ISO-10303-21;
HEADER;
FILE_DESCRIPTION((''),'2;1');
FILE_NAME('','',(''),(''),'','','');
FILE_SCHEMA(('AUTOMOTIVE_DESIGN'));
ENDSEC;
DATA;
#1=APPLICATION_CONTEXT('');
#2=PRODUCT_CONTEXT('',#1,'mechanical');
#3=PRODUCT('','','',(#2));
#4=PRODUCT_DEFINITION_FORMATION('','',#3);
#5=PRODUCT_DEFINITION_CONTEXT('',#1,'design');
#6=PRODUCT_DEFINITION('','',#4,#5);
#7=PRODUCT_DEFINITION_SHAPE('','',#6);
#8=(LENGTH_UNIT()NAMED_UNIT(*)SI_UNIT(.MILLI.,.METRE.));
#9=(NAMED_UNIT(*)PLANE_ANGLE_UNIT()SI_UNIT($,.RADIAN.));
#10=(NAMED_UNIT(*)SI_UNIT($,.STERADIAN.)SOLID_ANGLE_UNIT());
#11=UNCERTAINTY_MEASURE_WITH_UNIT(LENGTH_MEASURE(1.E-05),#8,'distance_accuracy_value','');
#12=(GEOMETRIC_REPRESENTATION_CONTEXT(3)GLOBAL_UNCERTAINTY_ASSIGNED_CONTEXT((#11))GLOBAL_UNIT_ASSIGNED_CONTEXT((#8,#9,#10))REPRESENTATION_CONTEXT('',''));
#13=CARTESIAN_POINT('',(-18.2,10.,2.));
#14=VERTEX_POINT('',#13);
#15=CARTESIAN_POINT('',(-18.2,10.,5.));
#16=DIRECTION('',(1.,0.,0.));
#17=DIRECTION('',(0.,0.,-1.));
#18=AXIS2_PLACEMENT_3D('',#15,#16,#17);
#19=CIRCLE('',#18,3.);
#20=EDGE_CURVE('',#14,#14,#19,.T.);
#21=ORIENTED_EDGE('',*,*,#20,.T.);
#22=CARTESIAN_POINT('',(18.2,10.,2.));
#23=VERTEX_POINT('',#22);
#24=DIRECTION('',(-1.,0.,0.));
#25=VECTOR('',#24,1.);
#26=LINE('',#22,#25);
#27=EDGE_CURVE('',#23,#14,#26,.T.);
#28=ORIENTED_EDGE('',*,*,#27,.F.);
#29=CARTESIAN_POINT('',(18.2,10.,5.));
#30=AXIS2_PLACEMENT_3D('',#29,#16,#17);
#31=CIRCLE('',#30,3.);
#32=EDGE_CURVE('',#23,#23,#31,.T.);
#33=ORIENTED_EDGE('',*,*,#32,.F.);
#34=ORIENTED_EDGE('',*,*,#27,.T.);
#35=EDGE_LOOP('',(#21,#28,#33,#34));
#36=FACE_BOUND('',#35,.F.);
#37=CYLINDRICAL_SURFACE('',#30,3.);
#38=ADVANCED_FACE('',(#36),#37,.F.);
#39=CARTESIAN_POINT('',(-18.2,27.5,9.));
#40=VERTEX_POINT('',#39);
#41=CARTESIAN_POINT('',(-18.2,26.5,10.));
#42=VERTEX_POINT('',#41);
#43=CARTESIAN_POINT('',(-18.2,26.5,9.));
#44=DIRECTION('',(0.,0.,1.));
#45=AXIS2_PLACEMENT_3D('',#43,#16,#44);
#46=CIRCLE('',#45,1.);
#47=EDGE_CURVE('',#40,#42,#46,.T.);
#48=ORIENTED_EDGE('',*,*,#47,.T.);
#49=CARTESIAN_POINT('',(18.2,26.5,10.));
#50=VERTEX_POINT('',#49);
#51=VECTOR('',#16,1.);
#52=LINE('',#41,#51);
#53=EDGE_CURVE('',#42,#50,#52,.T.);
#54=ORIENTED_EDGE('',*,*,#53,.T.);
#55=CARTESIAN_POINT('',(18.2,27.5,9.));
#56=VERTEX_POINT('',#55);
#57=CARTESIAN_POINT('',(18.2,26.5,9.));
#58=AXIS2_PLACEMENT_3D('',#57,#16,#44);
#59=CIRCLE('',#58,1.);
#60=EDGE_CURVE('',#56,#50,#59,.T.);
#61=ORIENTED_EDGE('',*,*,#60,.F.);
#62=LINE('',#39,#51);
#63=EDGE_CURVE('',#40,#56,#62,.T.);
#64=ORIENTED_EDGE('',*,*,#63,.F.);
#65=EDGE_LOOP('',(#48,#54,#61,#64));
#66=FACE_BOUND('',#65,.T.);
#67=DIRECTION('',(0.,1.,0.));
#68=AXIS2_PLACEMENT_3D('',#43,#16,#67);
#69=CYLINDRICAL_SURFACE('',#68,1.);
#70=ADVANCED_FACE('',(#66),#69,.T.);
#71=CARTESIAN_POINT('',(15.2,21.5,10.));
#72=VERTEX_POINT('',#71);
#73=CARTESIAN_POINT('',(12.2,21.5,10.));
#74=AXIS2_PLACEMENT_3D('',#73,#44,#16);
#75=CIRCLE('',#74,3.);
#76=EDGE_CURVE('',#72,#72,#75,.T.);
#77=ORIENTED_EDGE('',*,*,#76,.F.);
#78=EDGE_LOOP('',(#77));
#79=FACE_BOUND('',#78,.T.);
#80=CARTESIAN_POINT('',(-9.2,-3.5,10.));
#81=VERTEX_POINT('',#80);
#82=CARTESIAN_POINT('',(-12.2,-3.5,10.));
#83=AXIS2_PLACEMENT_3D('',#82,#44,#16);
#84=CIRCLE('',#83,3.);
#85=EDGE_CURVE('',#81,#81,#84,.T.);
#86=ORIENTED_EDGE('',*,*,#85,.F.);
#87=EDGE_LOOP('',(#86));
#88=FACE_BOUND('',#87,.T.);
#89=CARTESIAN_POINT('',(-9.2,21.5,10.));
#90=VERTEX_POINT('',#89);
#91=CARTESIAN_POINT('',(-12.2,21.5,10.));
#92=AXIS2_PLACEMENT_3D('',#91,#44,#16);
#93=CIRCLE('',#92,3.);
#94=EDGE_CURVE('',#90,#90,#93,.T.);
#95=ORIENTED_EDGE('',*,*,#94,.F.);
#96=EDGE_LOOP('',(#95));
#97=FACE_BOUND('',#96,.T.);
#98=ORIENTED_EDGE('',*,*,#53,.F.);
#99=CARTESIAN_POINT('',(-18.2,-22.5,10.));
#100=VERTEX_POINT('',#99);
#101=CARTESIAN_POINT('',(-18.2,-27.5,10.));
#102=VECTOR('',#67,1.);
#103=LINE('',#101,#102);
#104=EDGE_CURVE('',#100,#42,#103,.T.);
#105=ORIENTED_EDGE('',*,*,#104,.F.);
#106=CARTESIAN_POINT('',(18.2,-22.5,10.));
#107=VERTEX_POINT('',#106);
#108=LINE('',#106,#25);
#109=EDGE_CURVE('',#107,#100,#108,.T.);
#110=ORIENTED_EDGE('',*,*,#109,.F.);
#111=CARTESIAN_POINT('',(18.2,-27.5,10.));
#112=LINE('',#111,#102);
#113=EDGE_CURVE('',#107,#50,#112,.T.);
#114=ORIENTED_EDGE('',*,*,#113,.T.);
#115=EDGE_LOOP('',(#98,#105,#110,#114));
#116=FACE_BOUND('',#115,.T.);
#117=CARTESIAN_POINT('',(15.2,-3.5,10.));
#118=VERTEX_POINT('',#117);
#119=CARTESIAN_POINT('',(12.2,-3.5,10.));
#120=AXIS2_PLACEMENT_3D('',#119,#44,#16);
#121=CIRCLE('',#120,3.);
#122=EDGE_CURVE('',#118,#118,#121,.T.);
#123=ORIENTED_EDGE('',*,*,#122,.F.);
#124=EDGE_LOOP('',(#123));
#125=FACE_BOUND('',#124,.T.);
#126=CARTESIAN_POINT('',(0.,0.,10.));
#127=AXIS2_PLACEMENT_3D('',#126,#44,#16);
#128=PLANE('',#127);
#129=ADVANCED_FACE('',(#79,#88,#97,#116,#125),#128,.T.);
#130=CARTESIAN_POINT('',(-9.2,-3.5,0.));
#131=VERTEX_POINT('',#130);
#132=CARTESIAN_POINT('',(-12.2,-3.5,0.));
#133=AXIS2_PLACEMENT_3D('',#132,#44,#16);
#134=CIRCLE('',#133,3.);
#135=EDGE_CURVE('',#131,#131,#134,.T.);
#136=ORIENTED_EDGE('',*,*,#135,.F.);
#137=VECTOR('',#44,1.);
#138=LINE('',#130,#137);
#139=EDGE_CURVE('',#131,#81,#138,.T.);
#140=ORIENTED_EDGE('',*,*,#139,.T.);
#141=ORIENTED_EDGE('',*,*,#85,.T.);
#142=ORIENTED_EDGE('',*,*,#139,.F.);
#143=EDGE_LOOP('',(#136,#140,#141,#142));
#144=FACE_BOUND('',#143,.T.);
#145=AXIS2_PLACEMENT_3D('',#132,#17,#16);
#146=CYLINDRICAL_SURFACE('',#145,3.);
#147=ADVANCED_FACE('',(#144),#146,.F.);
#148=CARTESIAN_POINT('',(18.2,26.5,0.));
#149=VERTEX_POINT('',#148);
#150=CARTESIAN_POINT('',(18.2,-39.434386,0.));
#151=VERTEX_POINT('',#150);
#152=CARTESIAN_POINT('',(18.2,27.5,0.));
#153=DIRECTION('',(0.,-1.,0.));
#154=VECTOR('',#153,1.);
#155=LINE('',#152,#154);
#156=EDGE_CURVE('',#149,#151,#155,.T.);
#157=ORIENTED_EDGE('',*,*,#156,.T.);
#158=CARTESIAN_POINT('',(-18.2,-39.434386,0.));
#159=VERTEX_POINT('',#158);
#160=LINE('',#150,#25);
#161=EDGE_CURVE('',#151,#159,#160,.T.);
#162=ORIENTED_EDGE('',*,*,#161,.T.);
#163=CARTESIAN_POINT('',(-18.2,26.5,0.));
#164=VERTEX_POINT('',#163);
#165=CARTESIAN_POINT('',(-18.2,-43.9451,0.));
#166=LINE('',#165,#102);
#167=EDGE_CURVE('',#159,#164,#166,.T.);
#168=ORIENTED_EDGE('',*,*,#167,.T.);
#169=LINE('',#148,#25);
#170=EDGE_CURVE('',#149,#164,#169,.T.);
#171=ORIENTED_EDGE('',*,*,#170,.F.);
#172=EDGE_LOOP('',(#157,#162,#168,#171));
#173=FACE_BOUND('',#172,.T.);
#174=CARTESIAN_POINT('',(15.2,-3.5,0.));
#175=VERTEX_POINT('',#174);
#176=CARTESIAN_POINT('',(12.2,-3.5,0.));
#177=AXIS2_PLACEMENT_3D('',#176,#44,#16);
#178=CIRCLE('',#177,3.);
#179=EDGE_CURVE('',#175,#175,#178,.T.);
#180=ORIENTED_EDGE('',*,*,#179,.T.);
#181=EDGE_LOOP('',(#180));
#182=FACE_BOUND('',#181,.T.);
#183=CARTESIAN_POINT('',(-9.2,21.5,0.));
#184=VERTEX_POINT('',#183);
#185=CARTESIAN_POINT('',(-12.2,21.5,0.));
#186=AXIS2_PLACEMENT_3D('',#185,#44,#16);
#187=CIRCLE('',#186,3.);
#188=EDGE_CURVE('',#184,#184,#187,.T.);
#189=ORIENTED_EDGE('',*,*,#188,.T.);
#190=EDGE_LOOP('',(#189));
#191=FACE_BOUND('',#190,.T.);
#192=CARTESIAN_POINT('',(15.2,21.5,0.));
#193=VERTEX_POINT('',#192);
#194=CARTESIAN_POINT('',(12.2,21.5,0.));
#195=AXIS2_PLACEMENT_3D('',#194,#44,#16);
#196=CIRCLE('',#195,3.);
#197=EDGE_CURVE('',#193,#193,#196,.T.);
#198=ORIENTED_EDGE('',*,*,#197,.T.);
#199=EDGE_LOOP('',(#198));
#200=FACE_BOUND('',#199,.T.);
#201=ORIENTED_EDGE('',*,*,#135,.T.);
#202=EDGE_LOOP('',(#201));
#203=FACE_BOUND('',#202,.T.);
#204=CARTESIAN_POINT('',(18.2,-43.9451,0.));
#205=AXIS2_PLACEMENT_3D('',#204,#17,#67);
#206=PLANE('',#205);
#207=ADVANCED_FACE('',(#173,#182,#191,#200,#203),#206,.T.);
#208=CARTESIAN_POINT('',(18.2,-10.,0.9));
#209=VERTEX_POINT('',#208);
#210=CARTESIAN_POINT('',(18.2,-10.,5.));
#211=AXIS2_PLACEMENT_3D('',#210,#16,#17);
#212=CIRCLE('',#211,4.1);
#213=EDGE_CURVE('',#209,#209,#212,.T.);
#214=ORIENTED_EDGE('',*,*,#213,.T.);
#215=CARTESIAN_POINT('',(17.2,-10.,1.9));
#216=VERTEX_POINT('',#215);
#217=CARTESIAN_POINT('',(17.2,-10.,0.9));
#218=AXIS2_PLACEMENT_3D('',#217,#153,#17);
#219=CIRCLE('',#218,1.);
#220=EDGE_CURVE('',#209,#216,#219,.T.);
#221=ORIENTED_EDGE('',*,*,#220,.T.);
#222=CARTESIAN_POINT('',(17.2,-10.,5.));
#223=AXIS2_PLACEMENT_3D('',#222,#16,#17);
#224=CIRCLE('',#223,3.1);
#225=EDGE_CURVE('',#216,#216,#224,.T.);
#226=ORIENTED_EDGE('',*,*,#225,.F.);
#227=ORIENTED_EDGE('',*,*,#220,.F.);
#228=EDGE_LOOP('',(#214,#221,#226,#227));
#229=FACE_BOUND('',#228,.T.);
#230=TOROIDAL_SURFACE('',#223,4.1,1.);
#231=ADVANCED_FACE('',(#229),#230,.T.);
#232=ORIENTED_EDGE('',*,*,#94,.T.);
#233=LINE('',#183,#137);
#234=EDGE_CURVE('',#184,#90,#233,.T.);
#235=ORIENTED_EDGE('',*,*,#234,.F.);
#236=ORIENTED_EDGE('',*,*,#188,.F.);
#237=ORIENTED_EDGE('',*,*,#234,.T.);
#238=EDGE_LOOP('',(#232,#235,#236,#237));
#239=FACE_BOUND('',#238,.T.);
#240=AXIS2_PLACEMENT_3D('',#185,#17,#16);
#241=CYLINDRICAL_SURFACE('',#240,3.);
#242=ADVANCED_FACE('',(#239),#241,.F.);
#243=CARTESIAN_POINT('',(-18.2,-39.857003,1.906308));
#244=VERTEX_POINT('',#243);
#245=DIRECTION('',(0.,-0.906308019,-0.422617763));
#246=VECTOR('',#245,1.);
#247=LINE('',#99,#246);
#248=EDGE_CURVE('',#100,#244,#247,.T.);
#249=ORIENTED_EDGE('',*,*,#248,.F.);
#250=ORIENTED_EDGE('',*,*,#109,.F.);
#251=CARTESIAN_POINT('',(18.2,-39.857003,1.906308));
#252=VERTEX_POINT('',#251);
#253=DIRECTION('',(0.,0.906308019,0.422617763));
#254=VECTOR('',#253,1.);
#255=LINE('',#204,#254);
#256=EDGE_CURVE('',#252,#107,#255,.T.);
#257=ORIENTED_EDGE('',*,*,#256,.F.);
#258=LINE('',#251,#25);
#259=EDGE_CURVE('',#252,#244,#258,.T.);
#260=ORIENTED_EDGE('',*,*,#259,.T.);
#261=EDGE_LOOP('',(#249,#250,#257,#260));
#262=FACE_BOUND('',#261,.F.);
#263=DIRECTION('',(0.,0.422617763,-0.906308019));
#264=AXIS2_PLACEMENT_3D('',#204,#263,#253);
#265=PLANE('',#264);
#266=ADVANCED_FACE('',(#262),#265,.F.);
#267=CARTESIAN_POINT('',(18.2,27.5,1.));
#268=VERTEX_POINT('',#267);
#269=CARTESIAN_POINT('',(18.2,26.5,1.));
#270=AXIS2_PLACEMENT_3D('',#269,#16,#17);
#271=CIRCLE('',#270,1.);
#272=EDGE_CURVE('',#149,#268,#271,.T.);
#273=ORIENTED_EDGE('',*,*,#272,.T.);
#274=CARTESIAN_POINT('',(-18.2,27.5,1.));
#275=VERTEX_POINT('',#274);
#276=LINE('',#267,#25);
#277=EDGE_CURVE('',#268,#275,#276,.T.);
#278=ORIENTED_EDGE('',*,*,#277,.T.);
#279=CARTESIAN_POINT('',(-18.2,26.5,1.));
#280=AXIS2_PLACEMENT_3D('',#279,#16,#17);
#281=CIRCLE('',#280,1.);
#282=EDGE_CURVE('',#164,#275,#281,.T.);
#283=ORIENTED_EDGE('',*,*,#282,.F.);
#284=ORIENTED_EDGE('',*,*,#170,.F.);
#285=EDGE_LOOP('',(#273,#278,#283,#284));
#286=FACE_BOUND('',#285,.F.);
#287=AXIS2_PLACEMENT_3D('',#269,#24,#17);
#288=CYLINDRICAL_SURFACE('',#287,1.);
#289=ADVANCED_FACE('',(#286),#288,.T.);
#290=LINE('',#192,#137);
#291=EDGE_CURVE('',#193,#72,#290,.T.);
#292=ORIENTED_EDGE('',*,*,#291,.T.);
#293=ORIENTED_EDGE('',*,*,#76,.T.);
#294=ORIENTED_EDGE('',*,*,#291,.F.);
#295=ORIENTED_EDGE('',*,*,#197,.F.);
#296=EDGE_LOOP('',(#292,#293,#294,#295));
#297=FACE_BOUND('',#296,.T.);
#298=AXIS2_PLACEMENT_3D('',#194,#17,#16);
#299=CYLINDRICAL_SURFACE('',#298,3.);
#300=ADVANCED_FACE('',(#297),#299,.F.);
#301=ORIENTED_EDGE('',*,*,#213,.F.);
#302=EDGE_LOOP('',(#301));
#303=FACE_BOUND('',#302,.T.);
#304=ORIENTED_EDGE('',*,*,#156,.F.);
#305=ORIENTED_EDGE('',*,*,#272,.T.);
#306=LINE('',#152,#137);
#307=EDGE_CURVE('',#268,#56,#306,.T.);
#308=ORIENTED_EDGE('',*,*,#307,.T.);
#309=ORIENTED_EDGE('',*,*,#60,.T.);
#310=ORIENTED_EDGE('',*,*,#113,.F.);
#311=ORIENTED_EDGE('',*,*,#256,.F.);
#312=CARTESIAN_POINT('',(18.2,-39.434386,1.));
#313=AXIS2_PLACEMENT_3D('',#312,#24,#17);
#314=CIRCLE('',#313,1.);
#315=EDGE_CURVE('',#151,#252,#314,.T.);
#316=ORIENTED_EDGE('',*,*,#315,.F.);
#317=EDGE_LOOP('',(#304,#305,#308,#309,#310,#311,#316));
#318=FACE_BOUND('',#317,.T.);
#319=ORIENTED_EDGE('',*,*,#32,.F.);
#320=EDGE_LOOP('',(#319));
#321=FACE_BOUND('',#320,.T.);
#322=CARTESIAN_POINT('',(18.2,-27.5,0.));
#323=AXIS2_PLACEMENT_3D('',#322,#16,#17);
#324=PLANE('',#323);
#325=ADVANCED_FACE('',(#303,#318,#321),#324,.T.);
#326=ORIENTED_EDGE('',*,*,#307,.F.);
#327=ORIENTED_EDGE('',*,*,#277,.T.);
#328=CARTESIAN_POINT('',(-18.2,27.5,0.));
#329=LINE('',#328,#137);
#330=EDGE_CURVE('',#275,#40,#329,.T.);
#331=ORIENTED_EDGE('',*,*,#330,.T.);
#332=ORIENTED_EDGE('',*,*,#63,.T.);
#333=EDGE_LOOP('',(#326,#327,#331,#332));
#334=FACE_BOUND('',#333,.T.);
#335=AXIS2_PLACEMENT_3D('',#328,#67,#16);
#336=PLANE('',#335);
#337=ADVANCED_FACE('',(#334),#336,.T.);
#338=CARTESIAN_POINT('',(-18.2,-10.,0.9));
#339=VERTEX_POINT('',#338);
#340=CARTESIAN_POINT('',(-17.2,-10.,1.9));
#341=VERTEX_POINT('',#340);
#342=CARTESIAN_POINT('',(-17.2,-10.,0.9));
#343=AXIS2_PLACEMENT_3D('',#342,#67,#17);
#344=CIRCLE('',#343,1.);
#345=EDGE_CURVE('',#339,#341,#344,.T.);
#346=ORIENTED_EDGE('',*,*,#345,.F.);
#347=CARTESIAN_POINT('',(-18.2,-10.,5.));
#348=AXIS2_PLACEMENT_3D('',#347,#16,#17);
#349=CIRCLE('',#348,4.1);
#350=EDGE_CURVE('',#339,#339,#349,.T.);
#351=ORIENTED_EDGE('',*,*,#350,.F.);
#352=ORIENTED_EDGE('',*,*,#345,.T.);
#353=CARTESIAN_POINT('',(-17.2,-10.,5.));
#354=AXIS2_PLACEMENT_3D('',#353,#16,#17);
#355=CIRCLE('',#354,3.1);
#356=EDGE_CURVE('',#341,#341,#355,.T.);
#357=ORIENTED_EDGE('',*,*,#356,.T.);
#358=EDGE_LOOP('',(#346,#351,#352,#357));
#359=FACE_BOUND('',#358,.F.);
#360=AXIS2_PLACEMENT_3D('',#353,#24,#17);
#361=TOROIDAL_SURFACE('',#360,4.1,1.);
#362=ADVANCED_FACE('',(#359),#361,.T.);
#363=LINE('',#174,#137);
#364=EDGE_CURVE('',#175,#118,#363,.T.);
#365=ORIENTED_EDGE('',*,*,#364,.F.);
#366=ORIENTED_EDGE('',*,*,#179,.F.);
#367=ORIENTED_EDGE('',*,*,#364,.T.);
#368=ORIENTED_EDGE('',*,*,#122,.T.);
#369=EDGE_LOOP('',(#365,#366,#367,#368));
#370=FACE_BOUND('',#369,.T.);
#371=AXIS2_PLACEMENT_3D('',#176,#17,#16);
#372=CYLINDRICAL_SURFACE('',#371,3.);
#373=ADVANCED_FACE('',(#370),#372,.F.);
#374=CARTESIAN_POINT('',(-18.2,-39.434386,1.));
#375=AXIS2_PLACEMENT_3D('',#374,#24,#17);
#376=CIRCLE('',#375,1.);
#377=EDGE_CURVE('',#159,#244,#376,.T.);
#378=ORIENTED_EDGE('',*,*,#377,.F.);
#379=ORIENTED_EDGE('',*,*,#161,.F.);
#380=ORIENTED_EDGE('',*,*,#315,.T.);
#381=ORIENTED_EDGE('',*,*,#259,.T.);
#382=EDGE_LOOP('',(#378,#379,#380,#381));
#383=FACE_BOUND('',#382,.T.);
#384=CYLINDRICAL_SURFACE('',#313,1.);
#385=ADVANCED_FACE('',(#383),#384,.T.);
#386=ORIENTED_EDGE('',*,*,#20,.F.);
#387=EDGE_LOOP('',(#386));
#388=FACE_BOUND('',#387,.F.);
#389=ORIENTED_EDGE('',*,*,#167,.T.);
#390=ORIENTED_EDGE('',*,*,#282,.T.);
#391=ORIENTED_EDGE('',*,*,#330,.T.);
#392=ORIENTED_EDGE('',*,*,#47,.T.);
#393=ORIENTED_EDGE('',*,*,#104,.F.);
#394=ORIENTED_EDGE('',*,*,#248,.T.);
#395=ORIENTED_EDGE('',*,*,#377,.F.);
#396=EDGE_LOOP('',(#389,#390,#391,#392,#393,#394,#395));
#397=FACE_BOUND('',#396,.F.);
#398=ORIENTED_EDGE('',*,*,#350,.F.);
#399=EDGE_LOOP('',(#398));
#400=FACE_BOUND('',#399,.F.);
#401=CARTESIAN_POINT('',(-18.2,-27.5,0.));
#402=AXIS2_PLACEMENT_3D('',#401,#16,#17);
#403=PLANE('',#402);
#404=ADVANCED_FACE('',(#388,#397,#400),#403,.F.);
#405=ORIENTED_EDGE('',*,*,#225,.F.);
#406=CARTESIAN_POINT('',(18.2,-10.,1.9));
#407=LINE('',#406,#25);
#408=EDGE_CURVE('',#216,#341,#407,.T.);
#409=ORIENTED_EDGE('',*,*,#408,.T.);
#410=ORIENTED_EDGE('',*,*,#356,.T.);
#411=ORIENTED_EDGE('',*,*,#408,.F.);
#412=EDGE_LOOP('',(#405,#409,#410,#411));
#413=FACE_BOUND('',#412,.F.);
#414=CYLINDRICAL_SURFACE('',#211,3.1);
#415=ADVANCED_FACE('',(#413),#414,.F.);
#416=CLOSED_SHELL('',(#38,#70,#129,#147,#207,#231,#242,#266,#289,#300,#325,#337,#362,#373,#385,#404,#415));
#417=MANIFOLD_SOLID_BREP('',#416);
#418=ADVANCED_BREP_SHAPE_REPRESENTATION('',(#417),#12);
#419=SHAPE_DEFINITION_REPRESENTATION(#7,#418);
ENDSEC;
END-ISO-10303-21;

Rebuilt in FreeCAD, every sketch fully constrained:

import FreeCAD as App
import Part
import Sketcher

V = App.Vector
Q = App.Units.Quantity


def edges_at(feature, points):
    """Names of the edges that pass closest to the given points."""
    edges = feature.Shape.Edges
    near = lambda p: min(range(len(edges)), key=lambda i: edges[i].distToShape(Part.Vertex(*p))[0])
    return sorted({f"Edge{near(p) + 1}" for p in points})


def add_polygon(sketch, points):
    """Adds a closed chain of lines whose ends are joined by coincident constraints."""
    first, n = sketch.GeometryCount, len(points)
    for a, b in zip(points, points[1:] + points[:1]):
        sketch.addGeometry(Part.LineSegment(App.Vector(*a, 0), App.Vector(*b, 0)), False)
    for i in range(n):
        sketch.addConstraint(Sketcher.Constraint("Coincident", first + i, 2, first + (i + 1) % n, 1))

doc = App.newDocument("Part")
params = doc.addObject("Spreadsheet::Sheet", "Params")
for row, (alias, value) in enumerate([
    ("sketch1_diameter", "6 mm"),
    ("sketch1_height", "55 mm"),
    ("sketch1_width", "36.4 mm"),
    ("pad1_length", "10 mm"),
    ("sketch2_diameter", "6 mm"),
    ("sketch2_diameter2", "6.2 mm"),
    ("pocket1_length", "36.4 mm"),
    ("pad2_length", "36.4 mm"),
    ("sketch4_width", "5 mm"),
    ("pocket2_length", "36.4 mm"),
    ("fillet_radius", "1 mm"),
], start=1):
    params.set(f"A{row}", alias)
    params.set(f"B{row}", "=" + value)
    params.setAlias(f"B{row}", alias)

body = doc.addObject("PartDesign::Body", "Body")

# Sketch on XY plane
sketch1 = body.newObject("Sketcher::SketchObject", "Sketch")
sketch1.AttachmentSupport = (doc.getObject("XY_Plane"), [""])
sketch1.MapMode = "FlatFace"
add_polygon(sketch1, [(-18.2, 27.5), (-18.2, -27.5), (18.2, -27.5), (18.2, 27.5)])  # lines 0-3
sketch1.addGeometry(Part.Circle(V(-12.2, 21.5, 0), V(0, 0, 1), 3), False)  # 4
sketch1.addGeometry(Part.Circle(V(12.2, 21.5, 0), V(0, 0, 1), 3), False)  # 5
sketch1.addGeometry(Part.Circle(V(-12.2, -3.5, 0), V(0, 0, 1), 3), False)  # 6
sketch1.addGeometry(Part.Circle(V(12.2, -3.5, 0), V(0, 0, 1), 3), False)  # 7
sketch1.addConstraint([
    Sketcher.Constraint("Vertical", 0),
    Sketcher.Constraint("Horizontal", 1),
    Sketcher.Constraint("Vertical", 2),
    Sketcher.Constraint("Horizontal", 3),
    Sketcher.Constraint("Equal", 4, 5),
    Sketcher.Constraint("Equal", 5, 6),
    Sketcher.Constraint("Equal", 6, 7),
    Sketcher.Constraint("Symmetric", 0, 2, 2, 2, -1, 1),
    Sketcher.Constraint("Symmetric", 4, 3, 5, 3, -2),
    Sketcher.Constraint("Symmetric", 6, 3, 7, 3, -2),
    Sketcher.Constraint("Vertical", 4, 3, 6, 3),
    Sketcher.Constraint("Diameter", 4, 6.0),
    Sketcher.Constraint("DistanceY", 0, 2, 0, 1, 55.0),
    Sketcher.Constraint("DistanceX", 1, 1, 1, 2, 36.4),
    Sketcher.Constraint("DistanceY", 6, 3, 4, 3, 25.0),
    Sketcher.Constraint("DistanceX", 0, 2, 6, 3, 6.0),
    Sketcher.Constraint("DistanceY", 5, 3, 2, 2, 6.0),
])
sketch1.setExpression("Constraints[15]", "Params.sketch1_diameter")
sketch1.setExpression("Constraints[16]", "Params.sketch1_height")
sketch1.setExpression("Constraints[17]", "Params.sketch1_width")
pad1 = body.newObject("PartDesign::Pad", "Pad")
pad1.Profile = sketch1
pad1.setExpression("Length", "Params.pad1_length")

# Sketch on YZ plane
sketch2 = body.newObject("Sketcher::SketchObject", "Sketch001")
sketch2.AttachmentSupport = (doc.getObject("YZ_Plane"), [""])
sketch2.MapMode = "FlatFace"
sketch2.AttachmentOffset = App.Placement(V(0, 0, 18.2), App.Rotation())
sketch2.addGeometry([
    Part.Circle(V(10, 5, 0), V(0, 0, 1), 3),
    Part.Circle(V(-10, 5, 0), V(0, 0, 1), 3.1),
], False)
sketch2.addConstraint([
    Sketcher.Constraint("Symmetric", 0, 3, 1, 3, -2),
    Sketcher.Constraint("Diameter", 0, 6.0),
    Sketcher.Constraint("Diameter", 1, 6.2),
    Sketcher.Constraint("DistanceX", 1, 3, 0, 3, 20.0),
    Sketcher.Constraint("DistanceY", -1, 1, 0, 3, 5.0),
])
sketch2.setExpression("Constraints[1]", "Params.sketch2_diameter")
sketch2.setExpression("Constraints[2]", "Params.sketch2_diameter2")
pocket1 = body.newObject("PartDesign::Pocket", "Pocket")
pocket1.Profile = sketch2
pocket1.setExpression("Length", "Params.pocket1_length")

# Sketch on YZ plane
sketch3 = body.newObject("Sketcher::SketchObject", "Sketch002")
sketch3.AttachmentSupport = (doc.getObject("YZ_Plane"), [""])
sketch3.MapMode = "FlatFace"
sketch3.AttachmentOffset = App.Placement(V(0, 0, 18.2), App.Rotation())
add_polygon(sketch3, [(-28, 0), (-28, 8), (-44, 0)])  # lines 0-2
sketch3.addConstraint([
    Sketcher.Constraint("Vertical", 0),
    Sketcher.Constraint("Horizontal", 2),
    Sketcher.Constraint("PointOnObject", 1, 2, -1),
    Sketcher.Constraint("Angle", 1, Q("-155 deg")),
    Sketcher.Constraint("DistanceX", 0, 2, -1, 1, 27.5),
    Sketcher.Constraint("DistanceX", 2, 1, 2, 2, 16.445),
])
pad2 = body.newObject("PartDesign::Pad", "Pad001")
pad2.Profile = sketch3
pad2.setExpression("Length", "Params.pad2_length")
pad2.Reversed = True

# Sketch on YZ plane
sketch4 = body.newObject("Sketcher::SketchObject", "Sketch003")
sketch4.AttachmentSupport = (doc.getObject("YZ_Plane"), [""])
sketch4.MapMode = "FlatFace"
sketch4.AttachmentOffset = App.Placement(V(0, 0, 18.2), App.Rotation())
add_polygon(sketch4, [(-27.5, 7.7), (-22.5, 10), (-27.5, 10)])  # lines 0-2
sketch4.addConstraint([
    Sketcher.Constraint("Horizontal", 1),
    Sketcher.Constraint("Vertical", 2),
    Sketcher.Constraint("DistanceX", 1, 2, 1, 1, 5.0),
    Sketcher.Constraint("Angle", 0, Q("25 deg")),
    Sketcher.Constraint("DistanceY", -1, 1, 0, 2, 10.0),
    Sketcher.Constraint("DistanceX", 0, 2, -1, 1, 22.5),
])
sketch4.setExpression("Constraints[5]", "Params.sketch4_width")
pocket2 = body.newObject("PartDesign::Pocket", "Pocket001")
pocket2.Profile = sketch4
pocket2.setExpression("Length", "Params.pocket2_length")
doc.recompute()

fillet = body.newObject("PartDesign::Fillet", "Fillet")
fillet.Base = (pocket2, edges_at(pocket2, [
    (0, 27.5, 0),
    (0, 27.5, 10),
    (0, -43.945, 0),
    (18.2, -10, 8.1),
    (-18.2, -10, 8.1),
]))
fillet.setExpression("Radius", "Params.fillet_radius")

doc.recompute()
